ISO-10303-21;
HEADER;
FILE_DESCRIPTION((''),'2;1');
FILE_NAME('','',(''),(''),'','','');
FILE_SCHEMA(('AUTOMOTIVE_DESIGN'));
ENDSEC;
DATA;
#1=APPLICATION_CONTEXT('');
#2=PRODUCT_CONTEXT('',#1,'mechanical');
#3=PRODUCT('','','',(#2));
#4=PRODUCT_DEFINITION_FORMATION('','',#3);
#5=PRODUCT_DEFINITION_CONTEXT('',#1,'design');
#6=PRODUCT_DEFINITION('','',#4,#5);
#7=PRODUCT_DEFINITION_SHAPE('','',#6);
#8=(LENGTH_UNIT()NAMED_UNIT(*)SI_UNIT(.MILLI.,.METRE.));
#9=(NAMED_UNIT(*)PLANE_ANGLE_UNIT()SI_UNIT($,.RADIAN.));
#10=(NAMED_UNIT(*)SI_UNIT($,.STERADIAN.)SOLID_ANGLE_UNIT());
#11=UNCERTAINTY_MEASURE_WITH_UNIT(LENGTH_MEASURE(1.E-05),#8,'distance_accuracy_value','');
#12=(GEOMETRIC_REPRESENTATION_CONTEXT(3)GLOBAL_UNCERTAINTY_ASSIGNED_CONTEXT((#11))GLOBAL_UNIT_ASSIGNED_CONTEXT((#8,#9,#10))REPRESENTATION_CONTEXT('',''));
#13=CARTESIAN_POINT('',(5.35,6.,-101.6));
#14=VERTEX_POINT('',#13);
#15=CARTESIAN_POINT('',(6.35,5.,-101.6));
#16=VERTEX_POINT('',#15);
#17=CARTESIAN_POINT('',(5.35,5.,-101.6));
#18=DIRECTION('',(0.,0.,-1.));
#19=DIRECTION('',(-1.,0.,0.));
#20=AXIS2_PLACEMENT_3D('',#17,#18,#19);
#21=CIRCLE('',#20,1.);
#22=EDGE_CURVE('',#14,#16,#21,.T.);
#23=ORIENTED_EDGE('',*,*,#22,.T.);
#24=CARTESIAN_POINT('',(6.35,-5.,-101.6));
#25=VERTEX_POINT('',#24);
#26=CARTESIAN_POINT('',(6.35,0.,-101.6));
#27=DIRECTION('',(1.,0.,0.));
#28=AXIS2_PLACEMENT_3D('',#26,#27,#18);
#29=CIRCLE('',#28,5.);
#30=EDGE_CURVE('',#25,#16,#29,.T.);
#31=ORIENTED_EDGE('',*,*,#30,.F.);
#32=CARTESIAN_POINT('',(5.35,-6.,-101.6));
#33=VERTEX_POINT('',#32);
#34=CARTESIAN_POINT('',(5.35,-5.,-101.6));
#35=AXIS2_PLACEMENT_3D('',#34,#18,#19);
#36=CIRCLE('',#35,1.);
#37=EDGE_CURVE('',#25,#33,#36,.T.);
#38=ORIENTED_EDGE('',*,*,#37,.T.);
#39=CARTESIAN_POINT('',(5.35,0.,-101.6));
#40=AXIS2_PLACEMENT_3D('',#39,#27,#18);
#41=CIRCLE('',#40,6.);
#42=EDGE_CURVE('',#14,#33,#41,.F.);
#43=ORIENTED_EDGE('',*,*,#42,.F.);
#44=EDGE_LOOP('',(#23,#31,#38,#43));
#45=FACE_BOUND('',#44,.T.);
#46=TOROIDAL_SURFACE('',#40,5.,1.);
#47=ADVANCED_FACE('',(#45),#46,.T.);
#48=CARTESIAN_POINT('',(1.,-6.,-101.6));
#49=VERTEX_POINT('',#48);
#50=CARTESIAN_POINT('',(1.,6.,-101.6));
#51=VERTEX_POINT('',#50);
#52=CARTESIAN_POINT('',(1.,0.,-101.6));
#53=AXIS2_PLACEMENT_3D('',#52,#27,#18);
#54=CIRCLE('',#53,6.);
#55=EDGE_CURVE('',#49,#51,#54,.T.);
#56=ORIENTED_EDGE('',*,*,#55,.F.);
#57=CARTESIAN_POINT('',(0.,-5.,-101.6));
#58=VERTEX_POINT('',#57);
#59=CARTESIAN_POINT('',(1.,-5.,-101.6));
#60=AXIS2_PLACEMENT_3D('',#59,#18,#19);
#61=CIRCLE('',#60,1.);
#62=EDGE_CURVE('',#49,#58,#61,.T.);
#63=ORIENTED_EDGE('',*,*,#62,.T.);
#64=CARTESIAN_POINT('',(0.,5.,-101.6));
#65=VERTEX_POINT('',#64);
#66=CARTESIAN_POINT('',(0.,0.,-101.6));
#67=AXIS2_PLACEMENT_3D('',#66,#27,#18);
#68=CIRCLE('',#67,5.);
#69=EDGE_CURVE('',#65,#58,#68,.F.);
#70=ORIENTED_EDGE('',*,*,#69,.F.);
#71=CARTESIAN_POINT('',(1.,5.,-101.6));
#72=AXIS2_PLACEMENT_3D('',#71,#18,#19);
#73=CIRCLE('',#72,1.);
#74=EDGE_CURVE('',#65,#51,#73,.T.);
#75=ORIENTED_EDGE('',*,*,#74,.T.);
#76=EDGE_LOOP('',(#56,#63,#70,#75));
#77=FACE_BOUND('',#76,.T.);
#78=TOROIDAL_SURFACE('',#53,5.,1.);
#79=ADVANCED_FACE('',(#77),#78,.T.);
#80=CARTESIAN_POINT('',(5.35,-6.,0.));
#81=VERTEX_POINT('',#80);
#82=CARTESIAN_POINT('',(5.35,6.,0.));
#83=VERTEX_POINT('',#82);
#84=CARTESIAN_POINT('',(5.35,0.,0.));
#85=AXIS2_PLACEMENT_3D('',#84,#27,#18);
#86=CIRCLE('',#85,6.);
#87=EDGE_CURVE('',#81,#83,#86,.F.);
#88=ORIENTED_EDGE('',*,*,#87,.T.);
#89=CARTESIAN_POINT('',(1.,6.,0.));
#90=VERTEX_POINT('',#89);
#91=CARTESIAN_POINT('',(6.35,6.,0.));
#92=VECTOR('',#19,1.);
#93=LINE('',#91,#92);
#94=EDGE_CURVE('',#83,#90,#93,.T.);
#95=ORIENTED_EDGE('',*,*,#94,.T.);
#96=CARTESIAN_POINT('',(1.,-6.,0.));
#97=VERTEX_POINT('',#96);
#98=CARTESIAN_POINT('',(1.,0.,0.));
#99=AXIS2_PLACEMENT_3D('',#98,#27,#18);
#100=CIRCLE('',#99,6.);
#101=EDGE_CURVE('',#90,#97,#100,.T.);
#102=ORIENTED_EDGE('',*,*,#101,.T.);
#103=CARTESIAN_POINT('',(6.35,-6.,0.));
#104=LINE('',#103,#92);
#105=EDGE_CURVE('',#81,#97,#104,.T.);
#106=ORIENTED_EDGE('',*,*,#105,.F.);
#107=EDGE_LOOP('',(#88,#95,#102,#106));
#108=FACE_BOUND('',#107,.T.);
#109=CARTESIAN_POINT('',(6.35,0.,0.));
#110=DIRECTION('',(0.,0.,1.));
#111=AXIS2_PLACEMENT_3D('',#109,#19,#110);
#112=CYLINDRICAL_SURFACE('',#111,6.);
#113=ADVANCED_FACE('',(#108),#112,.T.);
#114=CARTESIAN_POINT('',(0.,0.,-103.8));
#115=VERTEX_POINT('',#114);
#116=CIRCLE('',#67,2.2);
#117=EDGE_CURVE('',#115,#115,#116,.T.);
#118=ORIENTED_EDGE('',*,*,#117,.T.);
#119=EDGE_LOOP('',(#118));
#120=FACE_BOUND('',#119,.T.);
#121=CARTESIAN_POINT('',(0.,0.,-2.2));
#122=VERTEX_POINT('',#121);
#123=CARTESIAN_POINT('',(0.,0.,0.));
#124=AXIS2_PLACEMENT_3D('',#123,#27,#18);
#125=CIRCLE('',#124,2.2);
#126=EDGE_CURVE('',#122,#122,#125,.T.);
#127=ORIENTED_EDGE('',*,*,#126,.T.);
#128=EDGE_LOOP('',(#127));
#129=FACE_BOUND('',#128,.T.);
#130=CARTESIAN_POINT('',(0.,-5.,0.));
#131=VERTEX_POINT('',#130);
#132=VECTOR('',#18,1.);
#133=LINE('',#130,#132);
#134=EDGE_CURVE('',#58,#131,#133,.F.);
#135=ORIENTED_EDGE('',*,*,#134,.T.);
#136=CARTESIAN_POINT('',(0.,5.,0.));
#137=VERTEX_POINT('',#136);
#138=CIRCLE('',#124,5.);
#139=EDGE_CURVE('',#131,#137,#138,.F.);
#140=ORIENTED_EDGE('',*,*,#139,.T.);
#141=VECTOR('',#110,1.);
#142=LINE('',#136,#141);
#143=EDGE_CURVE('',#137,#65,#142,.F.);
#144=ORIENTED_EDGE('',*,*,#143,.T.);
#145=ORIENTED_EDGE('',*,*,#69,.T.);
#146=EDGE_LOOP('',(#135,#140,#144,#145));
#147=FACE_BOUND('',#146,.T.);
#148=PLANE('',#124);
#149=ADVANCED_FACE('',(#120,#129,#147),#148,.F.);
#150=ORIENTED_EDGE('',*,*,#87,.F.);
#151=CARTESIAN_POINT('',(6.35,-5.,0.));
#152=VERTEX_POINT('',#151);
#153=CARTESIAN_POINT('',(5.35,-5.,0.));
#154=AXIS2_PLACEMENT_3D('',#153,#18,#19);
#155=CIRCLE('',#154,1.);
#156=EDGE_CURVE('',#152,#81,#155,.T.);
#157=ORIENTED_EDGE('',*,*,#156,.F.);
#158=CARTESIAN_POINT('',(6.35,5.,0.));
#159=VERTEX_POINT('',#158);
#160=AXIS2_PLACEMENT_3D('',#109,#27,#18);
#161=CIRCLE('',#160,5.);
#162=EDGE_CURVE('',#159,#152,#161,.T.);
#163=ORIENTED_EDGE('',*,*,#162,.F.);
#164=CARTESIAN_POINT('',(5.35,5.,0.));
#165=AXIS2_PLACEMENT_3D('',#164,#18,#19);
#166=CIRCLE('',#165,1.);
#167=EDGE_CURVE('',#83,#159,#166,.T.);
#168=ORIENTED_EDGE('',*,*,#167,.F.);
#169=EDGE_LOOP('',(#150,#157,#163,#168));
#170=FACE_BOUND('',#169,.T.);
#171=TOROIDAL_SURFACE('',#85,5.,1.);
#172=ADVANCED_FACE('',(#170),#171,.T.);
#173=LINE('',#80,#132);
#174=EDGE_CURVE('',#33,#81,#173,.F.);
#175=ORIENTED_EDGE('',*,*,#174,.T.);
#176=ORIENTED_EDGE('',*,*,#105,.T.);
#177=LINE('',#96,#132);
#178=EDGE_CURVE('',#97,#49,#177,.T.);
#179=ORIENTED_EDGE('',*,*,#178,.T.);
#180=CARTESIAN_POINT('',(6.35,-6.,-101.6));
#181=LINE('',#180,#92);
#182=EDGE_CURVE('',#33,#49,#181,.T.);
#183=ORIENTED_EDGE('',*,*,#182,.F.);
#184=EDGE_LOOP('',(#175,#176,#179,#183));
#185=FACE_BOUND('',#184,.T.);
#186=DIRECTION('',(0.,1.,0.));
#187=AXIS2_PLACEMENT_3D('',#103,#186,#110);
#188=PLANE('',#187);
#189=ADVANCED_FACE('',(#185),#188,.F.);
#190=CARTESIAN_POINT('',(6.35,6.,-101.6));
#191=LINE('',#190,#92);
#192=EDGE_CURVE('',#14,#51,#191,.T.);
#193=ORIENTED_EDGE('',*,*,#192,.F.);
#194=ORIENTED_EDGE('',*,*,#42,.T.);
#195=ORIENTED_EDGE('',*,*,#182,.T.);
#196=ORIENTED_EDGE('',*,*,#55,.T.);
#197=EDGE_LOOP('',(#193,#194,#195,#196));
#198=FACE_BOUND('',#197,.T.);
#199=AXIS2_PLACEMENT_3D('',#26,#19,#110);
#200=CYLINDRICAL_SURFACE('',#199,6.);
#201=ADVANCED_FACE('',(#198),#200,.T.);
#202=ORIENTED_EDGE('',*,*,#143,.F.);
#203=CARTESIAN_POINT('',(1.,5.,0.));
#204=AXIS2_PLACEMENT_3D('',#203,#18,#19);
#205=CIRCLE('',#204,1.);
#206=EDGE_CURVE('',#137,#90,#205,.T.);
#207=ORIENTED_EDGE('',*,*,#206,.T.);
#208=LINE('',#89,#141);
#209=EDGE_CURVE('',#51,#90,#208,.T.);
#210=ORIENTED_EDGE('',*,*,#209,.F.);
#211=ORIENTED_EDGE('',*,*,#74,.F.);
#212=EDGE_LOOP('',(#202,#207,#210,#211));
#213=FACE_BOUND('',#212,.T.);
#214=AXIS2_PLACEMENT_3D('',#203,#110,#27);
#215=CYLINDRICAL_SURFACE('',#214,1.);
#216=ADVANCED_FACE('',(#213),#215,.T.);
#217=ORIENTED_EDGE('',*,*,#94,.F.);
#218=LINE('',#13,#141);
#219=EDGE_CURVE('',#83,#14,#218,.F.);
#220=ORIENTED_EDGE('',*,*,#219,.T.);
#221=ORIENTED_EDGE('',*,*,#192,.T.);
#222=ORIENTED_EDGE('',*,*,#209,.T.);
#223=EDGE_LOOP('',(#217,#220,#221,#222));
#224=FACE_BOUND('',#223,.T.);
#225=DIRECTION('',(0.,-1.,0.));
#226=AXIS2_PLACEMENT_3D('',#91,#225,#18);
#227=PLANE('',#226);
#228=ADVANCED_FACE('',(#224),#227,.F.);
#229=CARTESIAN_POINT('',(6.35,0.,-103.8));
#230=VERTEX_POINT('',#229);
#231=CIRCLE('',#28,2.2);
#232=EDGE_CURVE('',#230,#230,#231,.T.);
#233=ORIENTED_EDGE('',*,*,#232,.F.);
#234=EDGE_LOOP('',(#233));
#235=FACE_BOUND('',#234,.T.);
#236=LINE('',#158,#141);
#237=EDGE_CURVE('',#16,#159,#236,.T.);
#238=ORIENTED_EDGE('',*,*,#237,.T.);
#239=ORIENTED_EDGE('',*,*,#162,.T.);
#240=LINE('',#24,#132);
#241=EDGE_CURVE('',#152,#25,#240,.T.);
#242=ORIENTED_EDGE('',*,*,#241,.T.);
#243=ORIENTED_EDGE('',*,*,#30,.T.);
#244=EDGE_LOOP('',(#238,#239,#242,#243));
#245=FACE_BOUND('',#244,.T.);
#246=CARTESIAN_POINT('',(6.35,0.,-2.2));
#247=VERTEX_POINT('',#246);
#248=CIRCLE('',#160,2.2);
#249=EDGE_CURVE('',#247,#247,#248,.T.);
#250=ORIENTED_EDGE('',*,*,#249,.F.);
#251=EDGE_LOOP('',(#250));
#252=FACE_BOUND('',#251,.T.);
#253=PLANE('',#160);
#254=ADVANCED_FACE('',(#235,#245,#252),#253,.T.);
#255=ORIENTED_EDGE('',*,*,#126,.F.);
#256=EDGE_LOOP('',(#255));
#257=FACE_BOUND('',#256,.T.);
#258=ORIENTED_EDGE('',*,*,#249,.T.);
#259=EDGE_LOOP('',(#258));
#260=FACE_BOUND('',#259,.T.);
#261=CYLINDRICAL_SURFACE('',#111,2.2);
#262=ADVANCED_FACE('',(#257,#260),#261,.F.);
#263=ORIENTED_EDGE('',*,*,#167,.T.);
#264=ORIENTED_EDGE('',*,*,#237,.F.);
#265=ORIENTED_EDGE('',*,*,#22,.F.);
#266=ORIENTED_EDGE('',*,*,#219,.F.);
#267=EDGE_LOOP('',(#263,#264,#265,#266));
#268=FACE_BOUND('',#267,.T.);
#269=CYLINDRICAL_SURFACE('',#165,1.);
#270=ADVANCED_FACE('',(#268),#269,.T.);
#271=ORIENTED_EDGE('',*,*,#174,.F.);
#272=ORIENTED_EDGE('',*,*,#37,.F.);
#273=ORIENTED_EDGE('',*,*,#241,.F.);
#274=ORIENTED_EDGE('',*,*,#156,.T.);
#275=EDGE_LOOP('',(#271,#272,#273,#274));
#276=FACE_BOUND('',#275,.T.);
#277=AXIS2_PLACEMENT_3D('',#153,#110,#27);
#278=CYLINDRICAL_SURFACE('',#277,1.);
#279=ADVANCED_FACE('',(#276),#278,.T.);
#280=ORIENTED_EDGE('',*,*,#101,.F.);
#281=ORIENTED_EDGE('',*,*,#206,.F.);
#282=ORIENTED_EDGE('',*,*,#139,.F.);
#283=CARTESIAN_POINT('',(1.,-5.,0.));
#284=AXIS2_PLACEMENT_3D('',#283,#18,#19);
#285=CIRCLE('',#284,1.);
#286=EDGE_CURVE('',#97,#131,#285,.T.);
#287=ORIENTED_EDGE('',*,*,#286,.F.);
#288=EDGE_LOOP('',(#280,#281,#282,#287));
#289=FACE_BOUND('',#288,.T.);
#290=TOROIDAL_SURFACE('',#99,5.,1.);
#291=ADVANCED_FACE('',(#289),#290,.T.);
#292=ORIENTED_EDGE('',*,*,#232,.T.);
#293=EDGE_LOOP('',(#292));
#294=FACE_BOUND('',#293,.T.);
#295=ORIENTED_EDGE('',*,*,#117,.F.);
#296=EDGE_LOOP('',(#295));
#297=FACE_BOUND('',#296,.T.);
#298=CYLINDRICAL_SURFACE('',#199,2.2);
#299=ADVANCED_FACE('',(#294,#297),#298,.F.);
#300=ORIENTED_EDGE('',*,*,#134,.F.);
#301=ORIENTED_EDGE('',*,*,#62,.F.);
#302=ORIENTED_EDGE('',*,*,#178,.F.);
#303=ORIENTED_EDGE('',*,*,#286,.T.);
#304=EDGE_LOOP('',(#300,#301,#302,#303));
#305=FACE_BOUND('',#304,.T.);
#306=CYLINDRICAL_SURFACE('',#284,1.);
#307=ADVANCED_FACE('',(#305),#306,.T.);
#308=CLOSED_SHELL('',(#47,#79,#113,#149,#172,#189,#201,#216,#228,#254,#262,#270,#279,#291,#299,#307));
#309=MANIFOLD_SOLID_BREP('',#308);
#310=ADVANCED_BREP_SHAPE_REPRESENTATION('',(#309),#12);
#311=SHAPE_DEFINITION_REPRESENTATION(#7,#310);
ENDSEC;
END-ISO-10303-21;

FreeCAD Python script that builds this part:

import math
import FreeCAD as App
import Part
import Sketcher

V = App.Vector
Q = App.Units.Quantity


def edges_at(feature, points):
    """Names of the edges that pass closest to the given points."""
    edges = feature.Shape.Edges
    near = lambda p: min(range(len(edges)), key=lambda i: edges[i].distToShape(Part.Vertex(*p))[0])
    return sorted({f"Edge{near(p) + 1}" for p in points})

doc = App.newDocument("Part")
params = doc.addObject("Spreadsheet::Sheet", "Params")
for row, (alias, value) in enumerate([
    ("sketch1_radius", "6 mm"),
    ("sketch1_diameter", "4.4 mm"),
    ("sketch1_height", "101.6 mm"),
    ("pad1_length", "6.35 mm"),
    ("fillet_radius", "1 mm"),
], start=1):
    params.set(f"A{row}", alias)
    params.set(f"B{row}", "=" + value)
    params.setAlias(f"B{row}", alias)

body = doc.addObject("PartDesign::Body", "Body")

# Sketch on YZ plane
sketch1 = body.newObject("Sketcher::SketchObject", "Sketch")
sketch1.AttachmentSupport = (doc.getObject("YZ_Plane"), [""])
sketch1.MapMode = "FlatFace"
sketch1.addGeometry(Part.LineSegment(V(6, -101.6, 0), V(6, 0, 0)), False)
sketch1.addGeometry(Part.ArcOfCircle(Part.Circle(V(0, 0, 0), V(0, 0, 1), 6), math.radians(0), math.radians(180)), False)
sketch1.addGeometry(Part.LineSegment(V(-6, 0, 0), V(-6, -101.6, 0)), False)
sketch1.addGeometry(Part.ArcOfCircle(Part.Circle(V(0, -101.6, 0), V(0, 0, 1), 6), math.radians(180), math.radians(360)), False)
sketch1.addGeometry(Part.Circle(V(0, -101.6, 0), V(0, 0, 1), 2.2), False)
sketch1.addGeometry(Part.Circle(V(0, 0, 0), V(0, 0, 1), 2.2), False)
sketch1.addConstraint(Sketcher.Constraint("Tangent", 0, 2, 1, 1))
sketch1.addConstraint(Sketcher.Constraint("Tangent", 1, 2, 2, 1))
sketch1.addConstraint(Sketcher.Constraint("Tangent", 2, 2, 3, 1))
sketch1.addConstraint(Sketcher.Constraint("Tangent", 3, 2, 0, 1))
sketch1.addConstraint(Sketcher.Constraint("Vertical", 0))
sketch1.addConstraint(Sketcher.Constraint("Vertical", 2))
sketch1.addConstraint(Sketcher.Constraint("Coincident", 1, 3, -1, 1))
sketch1.addConstraint(Sketcher.Constraint("Coincident", 5, 3, -1, 1))
sketch1.addConstraint(Sketcher.Constraint("Coincident", 4, 3, 3, 3))
sketch1.addConstraint(Sketcher.Constraint("Equal", 4, 5))
sketch1.addConstraint(Sketcher.Constraint("Radius", 1, Q("6 mm")))
sketch1.addConstraint(Sketcher.Constraint("Diameter", 4, Q("4.4 mm")))
sketch1.addConstraint(Sketcher.Constraint("DistanceY", 0, 1, 0, 2, Q("101.6 mm")))
sketch1.setExpression("Constraints[10]", "Params.sketch1_radius")
sketch1.setExpression("Constraints[11]", "Params.sketch1_diameter")
sketch1.setExpression("Constraints[12]", "Params.sketch1_height")
pad1 = body.newObject("PartDesign::Pad", "Pad")
pad1.Profile = sketch1
pad1.setExpression("Length", "Params.pad1_length")
doc.recompute()

fillet = body.newObject("PartDesign::Fillet", "Fillet")
fillet.Base = (pad1, edges_at(pad1, [
    (6.35, 0, -107.6),
    (6.35, 6, -50.8),
    (6.35, 0, 6),
    (0, 6, -50.8),
    (0, 0, -107.6),
    (0, -6, -50.8),
    (0, 0, 6),
    (6.35, -6, -50.8),
]))
fillet.setExpression("Radius", "Params.fillet_radius")

doc.recompute()
